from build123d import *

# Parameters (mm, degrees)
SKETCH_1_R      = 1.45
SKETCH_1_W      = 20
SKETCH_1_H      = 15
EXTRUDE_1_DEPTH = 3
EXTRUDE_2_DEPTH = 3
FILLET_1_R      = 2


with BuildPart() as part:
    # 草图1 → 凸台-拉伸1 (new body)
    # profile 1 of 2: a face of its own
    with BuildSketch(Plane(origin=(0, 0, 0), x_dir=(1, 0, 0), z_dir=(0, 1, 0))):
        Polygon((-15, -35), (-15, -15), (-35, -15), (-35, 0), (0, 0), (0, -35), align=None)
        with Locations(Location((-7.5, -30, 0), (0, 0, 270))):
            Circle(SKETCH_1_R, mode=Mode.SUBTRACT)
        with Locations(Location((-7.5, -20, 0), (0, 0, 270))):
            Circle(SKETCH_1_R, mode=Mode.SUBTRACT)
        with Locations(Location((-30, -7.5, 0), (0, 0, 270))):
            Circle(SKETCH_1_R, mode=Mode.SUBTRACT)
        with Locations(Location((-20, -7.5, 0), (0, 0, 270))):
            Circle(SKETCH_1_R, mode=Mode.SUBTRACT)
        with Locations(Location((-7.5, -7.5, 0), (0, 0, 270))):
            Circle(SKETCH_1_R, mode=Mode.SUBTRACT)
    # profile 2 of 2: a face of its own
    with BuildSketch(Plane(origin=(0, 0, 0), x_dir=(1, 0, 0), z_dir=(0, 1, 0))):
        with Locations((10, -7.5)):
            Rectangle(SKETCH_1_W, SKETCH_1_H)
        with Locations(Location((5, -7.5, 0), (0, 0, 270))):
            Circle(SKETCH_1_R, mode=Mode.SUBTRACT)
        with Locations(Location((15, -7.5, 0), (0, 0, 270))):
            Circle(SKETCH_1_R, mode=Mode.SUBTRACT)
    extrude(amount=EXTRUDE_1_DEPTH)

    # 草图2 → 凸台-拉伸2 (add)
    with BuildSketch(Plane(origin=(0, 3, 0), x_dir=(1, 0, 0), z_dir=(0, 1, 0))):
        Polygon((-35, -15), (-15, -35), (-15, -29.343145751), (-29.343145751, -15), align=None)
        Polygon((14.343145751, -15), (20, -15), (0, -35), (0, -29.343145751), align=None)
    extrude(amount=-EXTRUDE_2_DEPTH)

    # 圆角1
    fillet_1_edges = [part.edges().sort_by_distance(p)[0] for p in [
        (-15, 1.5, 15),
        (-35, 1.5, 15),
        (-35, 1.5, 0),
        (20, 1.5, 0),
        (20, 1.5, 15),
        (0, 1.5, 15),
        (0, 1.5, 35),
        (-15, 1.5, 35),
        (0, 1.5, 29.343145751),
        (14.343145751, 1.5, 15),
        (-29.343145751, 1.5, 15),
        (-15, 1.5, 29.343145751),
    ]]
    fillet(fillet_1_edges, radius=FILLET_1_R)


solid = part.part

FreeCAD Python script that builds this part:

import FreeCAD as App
import Part
import Sketcher
from FreeCAD import Vector


def edges_at(feature, points):
    """Names of the edges that pass closest to the given points."""
    edges = feature.Shape.Edges
    near = lambda p: min(range(len(edges)), key=lambda i: edges[i].distToShape(Part.Vertex(*p))[0])
    return sorted({f"Edge{near(p) + 1}" for p in points})

doc = App.newDocument("Part")
body = doc.addObject("PartDesign::Body", "Body")

# Sketch on XZ plane
sketch1 = doc.addObject("Sketcher::SketchObject", "Sketch")
body.addObject(sketch1)
sketch1.AttachmentSupport = (doc.XZ_Plane, [""])
sketch1.MapMode = "FlatFace"
sketch1.addGeometry([
    Part.LineSegment(Vector(-15, 15, 0), Vector(-15, 35, 0)),  # 0
    Part.LineSegment(Vector(-15, 35, 0), Vector(0, 35, 0)),  # 1
    Part.LineSegment(Vector(0, 35, 0), Vector(0, 15, 0)),  # 2
    Part.LineSegment(Vector(0, 15, 0), Vector(20, 15, 0)),  # 3
    Part.LineSegment(Vector(20, 15, 0), Vector(20, 0, 0)),  # 4
    Part.LineSegment(Vector(20, 0, 0), Vector(-35, 0, 0)),  # 5
    Part.LineSegment(Vector(-35, 0, 0), Vector(-35, 15, 0)),  # 6
    Part.LineSegment(Vector(-35, 15, 0), Vector(-15, 15, 0)),  # 7
    Part.Circle(Vector(-7.5, 30, 0), Vector(0, 0, 1), 1.4),  # 8
    Part.Circle(Vector(-7.5, 20, 0), Vector(0, 0, 1), 1.4),  # 9
    Part.Circle(Vector(-7.5, 7.5, 0), Vector(0, 0, 1), 1.4),  # 10
    Part.Circle(Vector(-20, 7.5, 0), Vector(0, 0, 1), 1.4),  # 11
    Part.Circle(Vector(-30, 7.5, 0), Vector(0, 0, 1), 1.4),  # 12
    Part.Circle(Vector(15, 7.5, 0), Vector(0, 0, 1), 1.4),  # 13
    Part.Circle(Vector(5, 7.5, 0), Vector(0, 0, 1), 1.4),  # 14
], False)
sketch1.addConstraint([
    Sketcher.Constraint("Coincident", 0, 2, 1, 1),
    Sketcher.Constraint("Coincident", 1, 2, 2, 1),
    Sketcher.Constraint("Coincident", 2, 2, 3, 1),
    Sketcher.Constraint("Coincident", 3, 2, 4, 1),
    Sketcher.Constraint("Coincident", 4, 2, 5, 1),
    Sketcher.Constraint("Coincident", 5, 2, 6, 1),
    Sketcher.Constraint("Coincident", 6, 2, 7, 1),
    Sketcher.Constraint("Coincident", 7, 2, 0, 1),
    Sketcher.Constraint("Vertical", 0),
    Sketcher.Constraint("Horizontal", 1),
    Sketcher.Constraint("Vertical", 2),
    Sketcher.Constraint("Horizontal", 3),
    Sketcher.Constraint("Vertical", 4),
    Sketcher.Constraint("Horizontal", 5),
    Sketcher.Constraint("Vertical", 6),
    Sketcher.Constraint("Horizontal", 7),
    Sketcher.Constraint("Equal", 8, 9),
    Sketcher.Constraint("Equal", 9, 10),
    Sketcher.Constraint("Equal", 10, 11),
    Sketcher.Constraint("Equal", 11, 12),
    Sketcher.Constraint("Equal", 12, 13),
    Sketcher.Constraint("Equal", 13, 14),
    Sketcher.Constraint("PointOnObject", 1, 2, -2),
    Sketcher.Constraint("PointOnObject", 4, 2, -1),
    Sketcher.Constraint("Horizontal", 10, 3, 11, 3),
    Sketcher.Constraint("Horizontal", 11, 3, 12, 3),
    Sketcher.Constraint("Horizontal", 12, 3, 13, 3),
    Sketcher.Constraint("Horizontal", 13, 3, 14, 3),
    Sketcher.Constraint("Horizontal", 3, 2, 6, 2),
    Sketcher.Constraint("Vertical", 8, 3, 9, 3),
    Sketcher.Constraint("Vertical", 9, 3, 10, 3),
    Sketcher.Constraint("Equal", 3, 7),
    Sketcher.Constraint("Equal", 7, 0),
    Sketcher.Constraint("Equal", 1, 4),
    Sketcher.Constraint("Diameter", 8, 2.9),
    Sketcher.Constraint("DistanceX", 1, 1, 1, 2, 15.0),
    Sketcher.Constraint("DistanceX", 3, 1, 3, 2, 20.0),
    Sketcher.Constraint("DistanceY", -1, 1, 8, 3, 30.0),
    Sketcher.Constraint("DistanceY", -1, 1, 9, 3, 20.0),
    Sketcher.Constraint("DistanceX", 11, 3, -1, 1, 20.0),
    Sketcher.Constraint("DistanceX", 12, 3, -1, 1, 30.0),
    Sketcher.Constraint("DistanceX", -1, 1, 13, 3, 15.0),
    Sketcher.Constraint("DistanceX", -1, 1, 14, 3, 5.0),
    Sketcher.Constraint("DistanceX", 8, 3, -1, 1, 7.5),
    Sketcher.Constraint("DistanceY", -1, 1, 10, 3, 7.5),
])
pad1 = doc.addObject("PartDesign::Pad", "Pad")
body.addObject(pad1)
pad1.Profile = sketch1
pad1.Length = 3
pad1.Reversed = True

# Sketch on XZ plane
sketch2 = doc.addObject("Sketcher::SketchObject", "Sketch001")
body.addObject(sketch2)
sketch2.AttachmentSupport = (doc.XZ_Plane, [""])
sketch2.MapMode = "FlatFace"
sketch2.AttachmentOffset = App.Placement(Vector(0, 0, -3), App.Rotation())
sketch2.addGeometry([
    Part.LineSegment(Vector(-35, 15, 0), Vector(-15, 35, 0)),  # 0
    Part.LineSegment(Vector(-15, 35, 0), Vector(-15, 29, 0)),  # 1
    Part.LineSegment(Vector(-15, 29, 0), Vector(-29, 15, 0)),  # 2
    Part.LineSegment(Vector(-29, 15, 0), Vector(-35, 15, 0)),  # 3
    Part.LineSegment(Vector(20, 15, 0), Vector(14, 15, 0)),  # 4
    Part.LineSegment(Vector(14, 15, 0), Vector(0, 29, 0)),  # 5
    Part.LineSegment(Vector(0, 29, 0), Vector(0, 35, 0)),  # 6
    Part.LineSegment(Vector(0, 35, 0), Vector(20, 15, 0)),  # 7
], False)
sketch2.addConstraint([
    Sketcher.Constraint("Coincident", 0, 2, 1, 1),
    Sketcher.Constraint("Coincident", 1, 2, 2, 1),
    Sketcher.Constraint("Coincident", 2, 2, 3, 1),
    Sketcher.Constraint("Coincident", 3, 2, 0, 1),
    Sketcher.Constraint("Coincident", 4, 2, 5, 1),
    Sketcher.Constraint("Coincident", 5, 2, 6, 1),
    Sketcher.Constraint("Coincident", 6, 2, 7, 1),
    Sketcher.Constraint("Coincident", 7, 2, 4, 1),
    Sketcher.Constraint("Vertical", 1),
    Sketcher.Constraint("Horizontal", 3),
    Sketcher.Constraint("Horizontal", 4),
    Sketcher.Constraint("Vertical", 6),
    Sketcher.Constraint("PointOnObject", 5, 2, -2),
    Sketcher.Constraint("Parallel", 0, 2),
    Sketcher.Constraint("Perpendicular", 2, 5),
    Sketcher.Constraint("Parallel", 5, 7),
    Sketcher.Constraint("Horizontal", 3, 2, 4, 2),
    Sketcher.Constraint("Horizontal", 1, 2, 5, 2),
    Sketcher.Constraint("Horizontal", 0, 2, 6, 2),
    Sketcher.Constraint("Equal", 3, 4),
    Sketcher.Constraint("DistanceX", 0, 2, -1, 1, 15.0),
    Sketcher.Constraint("DistanceY", -1, 1, 0, 2, 35.0),
    Sketcher.Constraint("DistanceY", -1, 1, 2, 2, 15.0),
    Sketcher.Constraint("Distance", 2, 20.284271),
])
pad2 = doc.addObject("PartDesign::Pad", "Pad001")
body.addObject(pad2)
pad2.Profile = sketch2
pad2.Length = 3
doc.recompute()

fillet = doc.addObject("PartDesign::Fillet", "Fillet")
body.addObject(fillet)
fillet.Base = (pad2, edges_at(pad2, [
    (-15, 1.5, 15),
    (-35, 1.5, 15),
    (-35, 1.5, 0),
    (20, 1.5, 0),
    (20, 1.5, 15),
    (0, 1.5, 15),
    (0, 1.5, 35),
    (-15, 1.5, 35),
    (0, 1.5, 29.343),
    (14.343, 1.5, 15),
    (-29.343, 1.5, 15),
    (-15, 1.5, 29.343),
]))
fillet.Radius = 2

doc.recompute()
